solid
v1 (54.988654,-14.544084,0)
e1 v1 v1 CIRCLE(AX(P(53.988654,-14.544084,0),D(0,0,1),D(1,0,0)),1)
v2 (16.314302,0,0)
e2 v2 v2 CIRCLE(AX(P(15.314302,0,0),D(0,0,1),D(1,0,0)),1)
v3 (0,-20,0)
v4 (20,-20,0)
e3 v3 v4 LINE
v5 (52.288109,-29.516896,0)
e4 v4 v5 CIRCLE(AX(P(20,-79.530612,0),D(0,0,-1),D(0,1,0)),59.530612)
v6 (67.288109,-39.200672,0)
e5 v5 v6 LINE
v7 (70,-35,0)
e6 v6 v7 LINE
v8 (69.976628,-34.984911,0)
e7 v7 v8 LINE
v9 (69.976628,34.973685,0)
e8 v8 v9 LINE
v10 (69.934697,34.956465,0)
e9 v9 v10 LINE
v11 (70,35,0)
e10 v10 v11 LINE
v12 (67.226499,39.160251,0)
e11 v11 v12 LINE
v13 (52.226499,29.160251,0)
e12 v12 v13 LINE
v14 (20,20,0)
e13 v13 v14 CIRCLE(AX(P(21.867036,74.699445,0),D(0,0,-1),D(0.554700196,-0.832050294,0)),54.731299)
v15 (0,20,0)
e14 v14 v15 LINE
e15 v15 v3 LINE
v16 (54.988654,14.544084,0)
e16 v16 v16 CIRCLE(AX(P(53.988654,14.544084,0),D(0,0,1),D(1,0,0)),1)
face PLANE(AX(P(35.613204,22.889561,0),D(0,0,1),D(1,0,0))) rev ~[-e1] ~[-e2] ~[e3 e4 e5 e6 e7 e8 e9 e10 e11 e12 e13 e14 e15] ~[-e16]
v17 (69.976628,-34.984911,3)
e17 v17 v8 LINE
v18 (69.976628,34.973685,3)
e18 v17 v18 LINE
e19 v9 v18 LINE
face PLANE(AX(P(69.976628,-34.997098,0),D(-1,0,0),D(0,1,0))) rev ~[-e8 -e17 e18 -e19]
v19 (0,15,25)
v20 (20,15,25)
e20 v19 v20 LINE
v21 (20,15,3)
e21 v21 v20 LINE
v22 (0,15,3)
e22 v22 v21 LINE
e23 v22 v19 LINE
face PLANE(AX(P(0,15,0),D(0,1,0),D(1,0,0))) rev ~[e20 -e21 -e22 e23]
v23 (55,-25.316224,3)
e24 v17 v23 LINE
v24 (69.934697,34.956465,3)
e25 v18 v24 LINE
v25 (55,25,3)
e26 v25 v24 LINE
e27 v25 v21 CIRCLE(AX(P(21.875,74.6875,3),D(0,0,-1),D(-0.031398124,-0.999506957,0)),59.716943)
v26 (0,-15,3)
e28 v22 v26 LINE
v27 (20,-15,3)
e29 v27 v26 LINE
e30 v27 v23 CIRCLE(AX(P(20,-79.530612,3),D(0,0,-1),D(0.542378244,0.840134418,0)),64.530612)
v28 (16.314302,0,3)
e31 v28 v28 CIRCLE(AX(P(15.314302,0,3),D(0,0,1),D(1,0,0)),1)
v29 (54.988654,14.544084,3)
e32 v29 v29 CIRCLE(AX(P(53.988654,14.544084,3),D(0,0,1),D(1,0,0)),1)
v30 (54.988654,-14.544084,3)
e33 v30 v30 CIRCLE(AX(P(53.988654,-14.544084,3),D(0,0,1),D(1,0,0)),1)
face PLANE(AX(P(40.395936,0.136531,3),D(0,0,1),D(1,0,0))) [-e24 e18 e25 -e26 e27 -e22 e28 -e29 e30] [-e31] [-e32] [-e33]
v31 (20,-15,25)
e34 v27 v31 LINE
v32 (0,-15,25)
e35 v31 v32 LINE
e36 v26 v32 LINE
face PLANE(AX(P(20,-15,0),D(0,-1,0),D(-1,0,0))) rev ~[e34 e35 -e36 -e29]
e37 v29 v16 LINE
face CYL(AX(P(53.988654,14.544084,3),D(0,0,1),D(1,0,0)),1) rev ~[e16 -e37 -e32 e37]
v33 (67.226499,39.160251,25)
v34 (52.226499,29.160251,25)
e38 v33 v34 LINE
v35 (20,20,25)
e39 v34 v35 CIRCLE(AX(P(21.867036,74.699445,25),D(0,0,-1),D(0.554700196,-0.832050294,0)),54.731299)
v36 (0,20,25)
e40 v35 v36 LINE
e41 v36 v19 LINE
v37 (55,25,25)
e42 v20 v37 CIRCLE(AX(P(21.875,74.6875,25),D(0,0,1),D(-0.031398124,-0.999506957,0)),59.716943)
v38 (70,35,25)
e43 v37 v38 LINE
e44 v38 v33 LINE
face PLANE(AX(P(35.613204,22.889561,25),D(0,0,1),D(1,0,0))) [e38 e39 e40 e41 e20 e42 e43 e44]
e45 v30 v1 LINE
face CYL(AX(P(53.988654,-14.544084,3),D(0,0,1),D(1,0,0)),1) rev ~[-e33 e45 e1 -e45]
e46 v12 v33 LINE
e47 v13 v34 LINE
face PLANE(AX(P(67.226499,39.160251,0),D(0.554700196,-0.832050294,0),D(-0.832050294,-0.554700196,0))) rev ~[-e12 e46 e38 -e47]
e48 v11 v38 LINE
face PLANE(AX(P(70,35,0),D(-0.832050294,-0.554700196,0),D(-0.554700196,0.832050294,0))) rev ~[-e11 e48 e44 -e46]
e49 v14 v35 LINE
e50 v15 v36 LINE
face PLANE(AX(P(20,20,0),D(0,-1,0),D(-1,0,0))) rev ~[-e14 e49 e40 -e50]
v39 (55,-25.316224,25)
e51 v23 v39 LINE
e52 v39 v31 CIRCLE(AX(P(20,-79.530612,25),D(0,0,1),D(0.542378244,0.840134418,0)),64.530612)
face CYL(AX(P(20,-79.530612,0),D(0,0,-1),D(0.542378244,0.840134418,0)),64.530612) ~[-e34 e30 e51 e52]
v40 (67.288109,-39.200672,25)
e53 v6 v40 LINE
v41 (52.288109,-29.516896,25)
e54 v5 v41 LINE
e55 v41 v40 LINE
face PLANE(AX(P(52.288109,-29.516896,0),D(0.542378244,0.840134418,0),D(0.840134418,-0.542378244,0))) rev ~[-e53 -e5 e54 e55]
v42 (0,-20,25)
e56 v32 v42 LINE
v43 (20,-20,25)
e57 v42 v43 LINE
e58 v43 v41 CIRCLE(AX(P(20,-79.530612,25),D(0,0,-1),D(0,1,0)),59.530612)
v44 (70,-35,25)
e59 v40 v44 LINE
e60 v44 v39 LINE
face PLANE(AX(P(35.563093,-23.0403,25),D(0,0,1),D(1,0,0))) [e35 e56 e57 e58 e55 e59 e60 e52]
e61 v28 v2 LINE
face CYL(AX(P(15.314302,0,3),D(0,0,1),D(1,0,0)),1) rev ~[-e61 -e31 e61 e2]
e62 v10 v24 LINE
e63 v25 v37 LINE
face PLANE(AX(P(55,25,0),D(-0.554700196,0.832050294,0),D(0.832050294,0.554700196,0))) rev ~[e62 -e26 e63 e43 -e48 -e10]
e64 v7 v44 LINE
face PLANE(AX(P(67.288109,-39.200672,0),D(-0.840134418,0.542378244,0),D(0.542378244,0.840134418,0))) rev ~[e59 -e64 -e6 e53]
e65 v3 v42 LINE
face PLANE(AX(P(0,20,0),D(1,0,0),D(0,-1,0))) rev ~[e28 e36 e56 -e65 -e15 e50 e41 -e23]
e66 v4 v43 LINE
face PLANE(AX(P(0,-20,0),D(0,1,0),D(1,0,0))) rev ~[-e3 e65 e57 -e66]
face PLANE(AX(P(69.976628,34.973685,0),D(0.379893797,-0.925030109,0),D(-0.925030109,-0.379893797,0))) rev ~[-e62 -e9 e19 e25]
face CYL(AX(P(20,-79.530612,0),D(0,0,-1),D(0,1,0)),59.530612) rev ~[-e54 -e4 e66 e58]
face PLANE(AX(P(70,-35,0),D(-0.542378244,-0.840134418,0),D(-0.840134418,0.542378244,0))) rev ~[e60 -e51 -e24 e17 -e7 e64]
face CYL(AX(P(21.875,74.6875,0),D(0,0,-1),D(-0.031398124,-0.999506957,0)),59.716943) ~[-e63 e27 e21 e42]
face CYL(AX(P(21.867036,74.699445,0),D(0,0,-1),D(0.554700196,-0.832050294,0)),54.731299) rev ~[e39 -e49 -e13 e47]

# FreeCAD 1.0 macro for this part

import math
import FreeCAD as App
import Part
import Sketcher
from FreeCAD import Vector

doc = App.newDocument("Part")
params = doc.addObject("Spreadsheet::Sheet", "Params")
for row, (alias, value) in enumerate([
    ("sketch1_width", "20 mm"),
    ("sketch1_height", "5 mm"),
    ("sketch1_length", "5 mm"),
    ("pad1_length", "25 mm"),
    ("sketch2_width", "20 mm"),
    ("sketch2_height", "5 mm"),
    ("pad2_length", "25 mm"),
    ("pad3_length", "3 mm"),
    ("sketch4_diameter", "2 mm"),
    ("pocket1_length", "3 mm"),
], start=1):
    params.set(f"A{row}", alias)
    params.set(f"B{row}", "=" + value)
    params.setAlias(f"B{row}", alias)

body = doc.addObject("PartDesign::Body", "Body")

# Sketch on XY plane
sketch1 = body.newObject("Sketcher::SketchObject", "Sketch")
sketch1.AttachmentSupport = (doc.getObject("XY_Plane"), [""])
sketch1.MapMode = "FlatFace"
sketch1.addGeometry(Part.LineSegment(Vector(0, 20, 0), Vector(0, 15, 0)), False)
sketch1.addGeometry(Part.LineSegment(Vector(0, 15, 0), Vector(20, 15, 0)), False)
sketch1.addGeometry(Part.ArcOfCircle(Part.Circle(Vector(22, 75, 0), Vector(0, 0, 1), 60), math.radians(-92), math.radians(-56)), False)
sketch1.addGeometry(Part.LineSegment(Vector(55, 25, 0), Vector(70, 35, 0)), False)
sketch1.addGeometry(Part.LineSegment(Vector(70, 35, 0), Vector(67, 39, 0)), False)
sketch1.addGeometry(Part.LineSegment(Vector(67, 39, 0), Vector(52, 29, 0)), False)
sketch1.addGeometry(Part.ArcOfCircle(Part.Circle(Vector(22, 75, 0), Vector(0, 0, 1), 55), math.radians(-92), math.radians(-56)), False)
sketch1.addGeometry(Part.LineSegment(Vector(20, 20, 0), Vector(0, 20, 0)), False)
sketch1.addConstraint(Sketcher.Constraint("Coincident", 0, 2, 1, 1))
sketch1.addConstraint(Sketcher.Constraint("Coincident", 1, 2, 2, 1))
sketch1.addConstraint(Sketcher.Constraint("Tangent", 2, 2, 3, 1))
sketch1.addConstraint(Sketcher.Constraint("Coincident", 3, 2, 4, 1))
sketch1.addConstraint(Sketcher.Constraint("Coincident", 4, 2, 5, 1))
sketch1.addConstraint(Sketcher.Constraint("Tangent", 5, 2, 6, 2))
sketch1.addConstraint(Sketcher.Constraint("Coincident", 6, 1, 7, 1))
sketch1.addConstraint(Sketcher.Constraint("Coincident", 7, 2, 0, 1))
sketch1.addConstraint(Sketcher.Constraint("Vertical", 0))
sketch1.addConstraint(Sketcher.Constraint("Horizontal", 1))
sketch1.addConstraint(Sketcher.Constraint("Horizontal", 7))
sketch1.addConstraint(Sketcher.Constraint("PointOnObject", 0, 2, -2))
sketch1.addConstraint(Sketcher.Constraint("Perpendicular", 3, 4))
sketch1.addConstraint(Sketcher.Constraint("Perpendicular", 4, 5))
sketch1.addConstraint(Sketcher.Constraint("Vertical", 1, 2, 6, 1))
sketch1.addConstraint(Sketcher.Constraint("Equal", 3, 5))
sketch1.addConstraint(Sketcher.Constraint("DistanceX", 1, 1, 1, 2, 20.0))
sketch1.addConstraint(Sketcher.Constraint("DistanceY", 0, 2, 0, 1, 5.0))
sketch1.addConstraint(Sketcher.Constraint("Distance", 4, 5.0))
sketch1.addConstraint(Sketcher.Constraint("DistanceY", -1, 1, 0, 2, 15.0))
sketch1.addConstraint(Sketcher.Constraint("DistanceX", -1, 1, 2, 2, 55.0))
sketch1.addConstraint(Sketcher.Constraint("DistanceY", -1, 1, 2, 2, 25.0))
sketch1.addConstraint(Sketcher.Constraint("DistanceX", -1, 1, 3, 2, 70.0))
sketch1.addConstraint(Sketcher.Constraint("DistanceY", -1, 1, 3, 2, 35.0))
sketch1.setExpression("Constraints[16]", "Params.sketch1_width")
sketch1.setExpression("Constraints[17]", "Params.sketch1_height")
sketch1.setExpression("Constraints[18]", "Params.sketch1_length")
pad1 = body.newObject("PartDesign::Pad", "Pad")
pad1.Profile = sketch1
pad1.setExpression("Length", "Params.pad1_length")
body2 = doc.addObject("PartDesign::Body", "Body001")

# Sketch on XY plane
sketch2 = body2.newObject("Sketcher::SketchObject", "Sketch001")
sketch2.AttachmentSupport = (doc.getObject("XY_Plane001"), [""])
sketch2.MapMode = "FlatFace"
sketch2.addGeometry(Part.LineSegment(Vector(20, -15, 0), Vector(0, -15, 0)), False)
sketch2.addGeometry(Part.LineSegment(Vector(0, -15, 0), Vector(0, -20, 0)), False)
sketch2.addGeometry(Part.LineSegment(Vector(0, -20, 0), Vector(20, -20, 0)), False)
sketch2.addGeometry(Part.ArcOfCircle(Part.Circle(Vector(20, -79.5, 0), Vector(0, 0, 1), 59.5), math.radians(57), math.radians(90)), False)
sketch2.addGeometry(Part.LineSegment(Vector(52.3, -29.5, 0), Vector(67.3, -39.2, 0)), False)
sketch2.addGeometry(Part.LineSegment(Vector(67.3, -39.2, 0), Vector(70, -35, 0)), False)
sketch2.addGeometry(Part.LineSegment(Vector(70, -35, 0), Vector(55, -25.3, 0)), False)
sketch2.addGeometry(Part.ArcOfCircle(Part.Circle(Vector(20, -79.5, 0), Vector(0, 0, 1), 64.5), math.radians(57), math.radians(90)), False)
sketch2.addConstraint(Sketcher.Constraint("Coincident", 0, 2, 1, 1))
sketch2.addConstraint(Sketcher.Constraint("Coincident", 1, 2, 2, 1))
sketch2.addConstraint(Sketcher.Constraint("Tangent", 2, 2, 3, 2))
sketch2.addConstraint(Sketcher.Constraint("Tangent", 3, 1, 4, 1))
sketch2.addConstraint(Sketcher.Constraint("Coincident", 4, 2, 5, 1))
sketch2.addConstraint(Sketcher.Constraint("Coincident", 5, 2, 6, 1))
sketch2.addConstraint(Sketcher.Constraint("Tangent", 6, 2, 7, 1))
sketch2.addConstraint(Sketcher.Constraint("Tangent", 7, 2, 0, 1))
sketch2.addConstraint(Sketcher.Constraint("Horizontal", 0))
sketch2.addConstraint(Sketcher.Constraint("Vertical", 1))
sketch2.addConstraint(Sketcher.Constraint("Horizontal", 2))
sketch2.addConstraint(Sketcher.Constraint("Coincident", 7, 3, 3, 3))
sketch2.addConstraint(Sketcher.Constraint("PointOnObject", 0, 2, -2))
sketch2.addConstraint(Sketcher.Constraint("Perpendicular", 4, 5))
sketch2.addConstraint(Sketcher.Constraint("Perpendicular", 5, 6))
sketch2.addConstraint(Sketcher.Constraint("DistanceX", 0, 2, 0, 1, 20.0))
sketch2.addConstraint(Sketcher.Constraint("DistanceY", 1, 2, 1, 1, 5.0))
sketch2.addConstraint(Sketcher.Constraint("DistanceY", 0, 2, -1, 1, 15.0))
sketch2.addConstraint(Sketcher.Constraint("DistanceX", -1, 1, 5, 2, 70.0))
sketch2.addConstraint(Sketcher.Constraint("DistanceY", 5, 2, -1, 1, 35.0))
sketch2.addConstraint(Sketcher.Constraint("DistanceX", -1, 1, 6, 2, 55.0))
sketch2.setExpression("Constraints[15]", "Params.sketch2_width")
sketch2.setExpression("Constraints[16]", "Params.sketch2_height")
pad2 = body2.newObject("PartDesign::Pad", "Pad001")
pad2.Profile = sketch2
pad2.setExpression("Length", "Params.pad2_length")
body.AllowCompound = True
doc.recompute()

boolean = body.newObject("PartDesign::Boolean", "Boolean")
boolean.Type = "Fuse"
boolean.addObjects([body2])

# Sketch on XY plane
sketch3 = body.newObject("Sketcher::SketchObject", "Sketch002")
sketch3.AttachmentSupport = (doc.getObject("XY_Plane"), [""])
sketch3.MapMode = "FlatFace"
sketch3.addGeometry(Part.LineSegment(Vector(31, 18, 0), Vector(0, 18, 0)), False)
sketch3.addGeometry(Part.LineSegment(Vector(0, 18, 0), Vector(0, -17, 0)), False)
sketch3.addGeometry(Part.LineSegment(Vector(0, -17, 0), Vector(26, -17, 0)), False)
sketch3.addGeometry(Part.LineSegment(Vector(26, -17, 0), Vector(40, -20, 0)), False)
sketch3.addGeometry(Part.LineSegment(Vector(40, -20, 0), Vector(54, -27, 0)), False)
sketch3.addGeometry(Part.LineSegment(Vector(54, -27, 0), Vector(70, -35, 0)), False)
sketch3.addGeometry(Part.LineSegment(Vector(70, -35, 0), Vector(70, 35, 0)), False)
sketch3.addGeometry(Part.LineSegment(Vector(70, 35, 0), Vector(58, 30, 0)), False)
sketch3.addGeometry(Part.LineSegment(Vector(58, 30, 0), Vector(45, 23, 0)), False)
sketch3.addGeometry(Part.LineSegment(Vector(45, 23, 0), Vector(31, 18, 0)), False)
sketch3.addConstraint(Sketcher.Constraint("Coincident", 0, 2, 1, 1))
sketch3.addConstraint(Sketcher.Constraint("Coincident", 1, 2, 2, 1))
sketch3.addConstraint(Sketcher.Constraint("Coincident", 2, 2, 3, 1))
sketch3.addConstraint(Sketcher.Constraint("Coincident", 3, 2, 4, 1))
sketch3.addConstraint(Sketcher.Constraint("Coincident", 4, 2, 5, 1))
sketch3.addConstraint(Sketcher.Constraint("Coincident", 5, 2, 6, 1))
sketch3.addConstraint(Sketcher.Constraint("Coincident", 6, 2, 7, 1))
sketch3.addConstraint(Sketcher.Constraint("Coincident", 7, 2, 8, 1))
sketch3.addConstraint(Sketcher.Constraint("Coincident", 8, 2, 9, 1))
sketch3.addConstraint(Sketcher.Constraint("Coincident", 9, 2, 0, 1))
sketch3.addConstraint(Sketcher.Constraint("Vertical", 1))
sketch3.addConstraint(Sketcher.Constraint("Horizontal", 2))
sketch3.addConstraint(Sketcher.Constraint("Vertical", 6))
sketch3.addConstraint(Sketcher.Constraint("PointOnObject", 0, 2, -2))
sketch3.addConstraint(Sketcher.Constraint("DistanceY", 1, 2, 1, 1, 34.6875))
sketch3.addConstraint(Sketcher.Constraint("DistanceX", 2, 2, 7, 2, 31.875001))
sketch3.addConstraint(Sketcher.Constraint("DistanceY", 4, 2, -1, 1, 27.1875))
sketch3.addConstraint(Sketcher.Constraint("DistanceY", 5, 2, -1, 1, 34.997098))
sketch3.addConstraint(Sketcher.Constraint("DistanceX", 3, 2, 4, 2, 14.062501))
sketch3.addConstraint(Sketcher.Constraint("DistanceX", 4, 2, 5, 2, 16.204301))
sketch3.addConstraint(Sketcher.Constraint("DistanceY", 9, 2, 7, 2, 12.1875))
sketch3.addConstraint(Sketcher.Constraint("Distance", 7, 12.73976))
sketch3.addConstraint(Sketcher.Constraint("Distance", 8, 15.284881))
sketch3.addConstraint(Sketcher.Constraint("Distance", 9, 14.360369))
sketch3.addConstraint(Sketcher.Constraint("DistanceX", 2, 1, 2, 2, 26.316965))
sketch3.addConstraint(Sketcher.Constraint("DistanceY", 6, 1, 6, 2, 69.970783))
sketch3.addConstraint(Sketcher.Constraint("DistanceY", 1, 2, -1, 1, 17.142858))
sketch3.addConstraint(Sketcher.Constraint("DistanceY", -1, 1, 7, 2, 30.133929))
sketch3.addConstraint(Sketcher.Constraint("DistanceX", -1, 1, 8, 2, 44.799112))
sketch3.addConstraint(Sketcher.Constraint("DistanceY", 3, 2, 6, 2, 55.06297))
pad3 = body.newObject("PartDesign::Pad", "Pad002")
pad3.Profile = sketch3
pad3.setExpression("Length", "Params.pad3_length")

# Sketch on XY plane
sketch4 = body.newObject("Sketcher::SketchObject", "Sketch003")
sketch4.AttachmentSupport = (doc.getObject("XY_Plane"), [""])
sketch4.MapMode = "FlatFace"
sketch4.AttachmentOffset = App.Placement(Vector(0, 0, 3), App.Rotation())
sketch4.addGeometry(Part.Circle(Vector(15.3, 0, 0), Vector(0, 0, 1), 1), False)
sketch4.addGeometry(Part.Circle(Vector(54, 14.5, 0), Vector(0, 0, 1), 1), False)
sketch4.addGeometry(Part.Circle(Vector(54, -14.5, 0), Vector(0, 0, 1), 1), False)
sketch4.addConstraint(Sketcher.Constraint("Equal", 0, 1))
sketch4.addConstraint(Sketcher.Constraint("Equal", 1, 2))
sketch4.addConstraint(Sketcher.Constraint("Symmetric", 1, 3, 2, 3, -1))
sketch4.addConstraint(Sketcher.Constraint("PointOnObject", 0, 3, -1))
sketch4.addConstraint(Sketcher.Constraint("Diameter", 0, 2.0))
sketch4.addConstraint(Sketcher.Constraint("DistanceX", 0, 3, 1, 3, 38.674352))
sketch4.addConstraint(Sketcher.Constraint("DistanceX", -1, 1, 0, 3, 15.314302))
sketch4.addConstraint(Sketcher.Constraint("DistanceY", -1, 1, 1, 3, 14.544084))
sketch4.setExpression("Constraints[4]", "Params.sketch4_diameter")
pocket1 = body.newObject("PartDesign::Pocket", "Pocket")
pocket1.Profile = sketch4
pocket1.setExpression("Length", "Params.pocket1_length")

doc.recompute()
